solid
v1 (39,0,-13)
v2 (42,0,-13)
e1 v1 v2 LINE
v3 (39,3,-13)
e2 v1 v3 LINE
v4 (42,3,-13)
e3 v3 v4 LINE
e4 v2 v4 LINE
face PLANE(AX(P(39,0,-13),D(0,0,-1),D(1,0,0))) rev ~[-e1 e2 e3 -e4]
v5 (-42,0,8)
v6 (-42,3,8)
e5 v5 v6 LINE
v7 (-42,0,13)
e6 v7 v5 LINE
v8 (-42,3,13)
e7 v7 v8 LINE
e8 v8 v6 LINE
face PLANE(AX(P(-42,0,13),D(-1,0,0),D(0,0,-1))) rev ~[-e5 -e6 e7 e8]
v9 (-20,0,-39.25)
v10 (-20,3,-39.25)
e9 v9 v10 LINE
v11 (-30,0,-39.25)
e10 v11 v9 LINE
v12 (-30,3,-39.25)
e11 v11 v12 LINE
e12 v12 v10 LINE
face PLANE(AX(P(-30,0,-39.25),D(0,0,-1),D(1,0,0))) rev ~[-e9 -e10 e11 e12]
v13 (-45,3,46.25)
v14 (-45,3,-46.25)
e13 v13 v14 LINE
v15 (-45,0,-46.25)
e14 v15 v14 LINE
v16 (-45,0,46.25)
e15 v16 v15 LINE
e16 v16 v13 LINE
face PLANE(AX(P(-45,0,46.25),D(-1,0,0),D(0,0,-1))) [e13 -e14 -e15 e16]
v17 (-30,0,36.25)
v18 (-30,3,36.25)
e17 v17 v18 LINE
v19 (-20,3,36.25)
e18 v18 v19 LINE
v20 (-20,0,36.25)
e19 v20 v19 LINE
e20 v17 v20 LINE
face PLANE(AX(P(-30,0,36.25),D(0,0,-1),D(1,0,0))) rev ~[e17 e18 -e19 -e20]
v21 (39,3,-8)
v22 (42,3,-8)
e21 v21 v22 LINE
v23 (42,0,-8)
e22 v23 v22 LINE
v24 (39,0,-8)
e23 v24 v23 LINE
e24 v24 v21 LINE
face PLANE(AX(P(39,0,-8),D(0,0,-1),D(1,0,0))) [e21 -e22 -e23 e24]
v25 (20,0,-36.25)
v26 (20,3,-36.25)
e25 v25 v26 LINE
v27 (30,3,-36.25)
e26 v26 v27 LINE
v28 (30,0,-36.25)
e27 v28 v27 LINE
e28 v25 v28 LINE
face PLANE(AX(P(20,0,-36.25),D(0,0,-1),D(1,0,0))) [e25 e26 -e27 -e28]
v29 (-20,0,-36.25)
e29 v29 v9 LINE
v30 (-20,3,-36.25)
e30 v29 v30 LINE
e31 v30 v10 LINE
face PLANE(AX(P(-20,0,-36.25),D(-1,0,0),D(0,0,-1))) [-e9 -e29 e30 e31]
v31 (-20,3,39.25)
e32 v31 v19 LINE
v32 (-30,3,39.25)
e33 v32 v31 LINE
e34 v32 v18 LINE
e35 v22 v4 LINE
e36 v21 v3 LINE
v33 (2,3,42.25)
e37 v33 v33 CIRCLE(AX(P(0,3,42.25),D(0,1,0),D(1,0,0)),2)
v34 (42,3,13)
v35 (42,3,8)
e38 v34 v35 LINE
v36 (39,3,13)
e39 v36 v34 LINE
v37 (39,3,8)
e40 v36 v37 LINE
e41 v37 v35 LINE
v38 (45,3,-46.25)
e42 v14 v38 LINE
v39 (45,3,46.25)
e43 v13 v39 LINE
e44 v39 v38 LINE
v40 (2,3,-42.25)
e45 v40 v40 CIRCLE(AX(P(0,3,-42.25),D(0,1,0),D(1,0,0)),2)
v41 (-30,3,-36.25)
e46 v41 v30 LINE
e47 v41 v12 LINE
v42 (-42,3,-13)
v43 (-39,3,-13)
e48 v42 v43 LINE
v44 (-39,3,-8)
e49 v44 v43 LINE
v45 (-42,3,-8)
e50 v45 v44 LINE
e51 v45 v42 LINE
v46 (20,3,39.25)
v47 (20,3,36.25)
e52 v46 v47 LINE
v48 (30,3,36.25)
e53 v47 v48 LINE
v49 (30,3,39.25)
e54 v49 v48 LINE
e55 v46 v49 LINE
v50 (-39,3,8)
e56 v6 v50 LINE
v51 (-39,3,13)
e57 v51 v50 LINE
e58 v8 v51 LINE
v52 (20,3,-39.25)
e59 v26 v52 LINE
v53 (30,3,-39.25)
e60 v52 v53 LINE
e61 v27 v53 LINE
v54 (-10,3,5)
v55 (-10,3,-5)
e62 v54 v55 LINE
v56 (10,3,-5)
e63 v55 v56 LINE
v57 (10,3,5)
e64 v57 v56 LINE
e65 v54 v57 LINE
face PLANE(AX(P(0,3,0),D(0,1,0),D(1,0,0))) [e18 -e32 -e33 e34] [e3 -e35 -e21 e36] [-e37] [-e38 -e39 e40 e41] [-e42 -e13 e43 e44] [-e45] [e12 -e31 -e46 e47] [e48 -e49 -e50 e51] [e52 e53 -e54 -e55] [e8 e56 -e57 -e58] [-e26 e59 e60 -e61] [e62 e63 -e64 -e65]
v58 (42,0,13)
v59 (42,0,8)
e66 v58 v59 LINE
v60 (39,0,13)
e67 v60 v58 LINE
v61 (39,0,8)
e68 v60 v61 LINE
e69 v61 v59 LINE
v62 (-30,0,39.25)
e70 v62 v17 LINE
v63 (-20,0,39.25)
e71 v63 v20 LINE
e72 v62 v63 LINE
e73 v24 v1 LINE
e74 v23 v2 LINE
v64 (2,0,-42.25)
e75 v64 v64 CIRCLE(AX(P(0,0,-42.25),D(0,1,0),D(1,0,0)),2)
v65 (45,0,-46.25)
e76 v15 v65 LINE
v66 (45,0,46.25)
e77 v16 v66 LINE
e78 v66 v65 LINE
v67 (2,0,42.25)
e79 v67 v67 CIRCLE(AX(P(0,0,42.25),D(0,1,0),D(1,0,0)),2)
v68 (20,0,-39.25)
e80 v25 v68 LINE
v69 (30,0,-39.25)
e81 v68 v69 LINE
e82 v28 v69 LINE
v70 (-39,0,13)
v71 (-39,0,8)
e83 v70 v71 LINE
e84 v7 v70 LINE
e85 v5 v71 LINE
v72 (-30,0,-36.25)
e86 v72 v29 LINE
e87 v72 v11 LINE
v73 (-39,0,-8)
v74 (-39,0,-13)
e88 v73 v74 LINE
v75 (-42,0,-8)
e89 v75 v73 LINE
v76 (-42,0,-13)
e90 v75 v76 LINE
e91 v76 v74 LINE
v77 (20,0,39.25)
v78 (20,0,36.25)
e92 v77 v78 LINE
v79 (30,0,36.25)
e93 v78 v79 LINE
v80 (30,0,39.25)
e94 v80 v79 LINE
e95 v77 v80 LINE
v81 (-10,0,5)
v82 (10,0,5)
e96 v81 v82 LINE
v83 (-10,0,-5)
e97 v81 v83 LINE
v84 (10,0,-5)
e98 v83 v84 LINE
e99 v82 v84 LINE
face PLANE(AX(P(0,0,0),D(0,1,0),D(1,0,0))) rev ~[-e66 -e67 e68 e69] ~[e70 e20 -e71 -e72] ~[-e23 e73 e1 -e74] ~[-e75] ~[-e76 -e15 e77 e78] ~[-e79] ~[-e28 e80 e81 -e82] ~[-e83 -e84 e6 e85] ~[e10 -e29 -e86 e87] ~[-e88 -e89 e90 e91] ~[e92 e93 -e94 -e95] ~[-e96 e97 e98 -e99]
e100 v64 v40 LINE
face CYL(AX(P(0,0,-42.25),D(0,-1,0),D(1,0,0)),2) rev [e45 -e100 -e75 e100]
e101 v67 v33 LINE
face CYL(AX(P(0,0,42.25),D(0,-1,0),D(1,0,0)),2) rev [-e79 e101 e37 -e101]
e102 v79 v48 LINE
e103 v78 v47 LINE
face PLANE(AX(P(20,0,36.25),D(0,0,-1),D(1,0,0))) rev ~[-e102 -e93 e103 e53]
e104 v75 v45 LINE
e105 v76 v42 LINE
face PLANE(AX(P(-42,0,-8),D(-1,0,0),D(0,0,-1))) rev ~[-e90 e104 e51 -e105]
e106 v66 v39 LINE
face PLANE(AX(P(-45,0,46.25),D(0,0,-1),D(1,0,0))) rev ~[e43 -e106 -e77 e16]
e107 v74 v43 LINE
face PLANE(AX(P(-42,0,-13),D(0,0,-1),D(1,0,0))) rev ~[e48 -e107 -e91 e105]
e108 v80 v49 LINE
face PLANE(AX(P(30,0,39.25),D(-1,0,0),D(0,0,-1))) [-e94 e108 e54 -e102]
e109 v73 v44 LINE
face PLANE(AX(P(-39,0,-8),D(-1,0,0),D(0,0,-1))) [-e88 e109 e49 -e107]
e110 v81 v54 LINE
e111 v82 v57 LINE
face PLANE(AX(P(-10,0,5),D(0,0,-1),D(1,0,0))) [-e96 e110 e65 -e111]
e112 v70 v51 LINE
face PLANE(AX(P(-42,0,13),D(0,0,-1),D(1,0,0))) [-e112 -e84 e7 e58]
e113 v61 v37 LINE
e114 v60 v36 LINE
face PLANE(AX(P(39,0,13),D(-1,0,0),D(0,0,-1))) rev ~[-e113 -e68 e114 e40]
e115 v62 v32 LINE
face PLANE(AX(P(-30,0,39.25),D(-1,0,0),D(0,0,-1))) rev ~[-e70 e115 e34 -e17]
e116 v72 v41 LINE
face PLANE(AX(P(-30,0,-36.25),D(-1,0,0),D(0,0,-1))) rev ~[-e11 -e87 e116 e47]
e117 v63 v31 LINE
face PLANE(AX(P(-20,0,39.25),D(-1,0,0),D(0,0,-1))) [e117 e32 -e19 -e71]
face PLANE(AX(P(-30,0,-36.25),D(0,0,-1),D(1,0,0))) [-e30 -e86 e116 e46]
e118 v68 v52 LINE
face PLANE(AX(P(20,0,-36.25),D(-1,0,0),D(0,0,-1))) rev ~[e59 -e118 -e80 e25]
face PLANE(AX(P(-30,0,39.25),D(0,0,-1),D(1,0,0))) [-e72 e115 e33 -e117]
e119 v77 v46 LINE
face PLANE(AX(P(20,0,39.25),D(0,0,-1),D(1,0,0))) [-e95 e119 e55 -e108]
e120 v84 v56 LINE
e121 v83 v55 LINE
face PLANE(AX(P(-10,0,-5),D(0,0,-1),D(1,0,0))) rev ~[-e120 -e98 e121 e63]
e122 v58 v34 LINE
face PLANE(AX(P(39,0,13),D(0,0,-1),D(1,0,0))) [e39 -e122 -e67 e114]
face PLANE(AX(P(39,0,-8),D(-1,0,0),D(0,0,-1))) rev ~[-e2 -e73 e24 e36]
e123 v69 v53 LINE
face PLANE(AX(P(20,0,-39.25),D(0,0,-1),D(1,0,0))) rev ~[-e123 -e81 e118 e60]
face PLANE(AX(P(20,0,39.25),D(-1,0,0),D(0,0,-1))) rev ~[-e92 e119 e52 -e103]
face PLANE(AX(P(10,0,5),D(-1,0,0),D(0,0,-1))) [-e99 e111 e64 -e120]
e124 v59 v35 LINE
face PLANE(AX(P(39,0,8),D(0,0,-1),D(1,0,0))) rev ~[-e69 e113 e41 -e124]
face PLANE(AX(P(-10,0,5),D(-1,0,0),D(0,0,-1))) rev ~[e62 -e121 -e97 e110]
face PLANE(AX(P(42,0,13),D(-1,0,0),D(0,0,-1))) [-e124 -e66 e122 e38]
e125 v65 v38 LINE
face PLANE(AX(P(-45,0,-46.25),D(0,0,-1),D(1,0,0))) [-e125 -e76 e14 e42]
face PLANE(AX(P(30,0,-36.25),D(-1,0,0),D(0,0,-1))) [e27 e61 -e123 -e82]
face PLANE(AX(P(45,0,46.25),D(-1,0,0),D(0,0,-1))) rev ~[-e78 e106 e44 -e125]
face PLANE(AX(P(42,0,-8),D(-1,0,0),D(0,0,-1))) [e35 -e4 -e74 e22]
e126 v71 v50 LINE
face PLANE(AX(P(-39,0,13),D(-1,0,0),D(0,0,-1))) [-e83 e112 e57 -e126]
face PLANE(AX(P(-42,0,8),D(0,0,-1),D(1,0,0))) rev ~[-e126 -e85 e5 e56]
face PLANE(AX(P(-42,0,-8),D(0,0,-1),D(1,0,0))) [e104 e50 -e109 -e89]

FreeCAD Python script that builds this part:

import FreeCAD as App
import Part
import Sketcher

V = App.Vector


def add_polygon(sketch, points):
    """Adds a closed chain of lines whose ends are joined by coincident constraints."""
    first, n = sketch.GeometryCount, len(points)
    for a, b in zip(points, points[1:] + points[:1]):
        sketch.addGeometry(Part.LineSegment(App.Vector(*a, 0), App.Vector(*b, 0)), False)
    for i in range(n):
        sketch.addConstraint(Sketcher.Constraint("Coincident", first + i, 2, first + (i + 1) % n, 1))

doc = App.newDocument("Part")
body = doc.addObject("PartDesign::Body", "Body")

sketch1 = doc.addObject("Sketcher::SketchObject", "Sketch")
body.addObject(sketch1)
sketch1.AttachmentSupport = (doc.XZ_Plane, [""])
sketch1.MapMode = "FlatFace"
add_polygon(sketch1, [(-45, -46.25), (-45, 46.25), (45, 46.25), (45, -46.25)])
add_polygon(sketch1, [(-20, 39.25), (-30, 39.25), (-30, 36.25), (-20, 36.25)])
add_polygon(sketch1, [(-39, 13), (-42, 13), (-42, 8), (-39, 8)])
sketch1.addGeometry(Part.Circle(V(0, 42.25, 0), V(0, 0, 1), 2), False)
add_polygon(sketch1, [(30, 39.25), (20, 39.25), (20, 36.25), (30, 36.25)])
add_polygon(sketch1, [(42, 13), (39, 13), (39, 8), (42, 8)])
add_polygon(sketch1, [(-39, -8), (-42, -8), (-42, -13), (-39, -13)])
add_polygon(sketch1, [(-20, -36.25), (-30, -36.25), (-30, -39.25), (-20, -39.25)])
add_polygon(sketch1, [(10, 5), (-10, 5), (-10, -5), (10, -5)])
add_polygon(sketch1, [(42, -8), (39, -8), (39, -13), (42, -13)])
sketch1.addGeometry(Part.Circle(V(0, -42.25, 0), V(0, 0, 1), 2), False)
add_polygon(sketch1, [(30, -36.25), (20, -36.25), (20, -39.25), (30, -39.25)])
sketch1.addConstraint(Sketcher.Constraint("Vertical", 0))
sketch1.addConstraint(Sketcher.Constraint("Horizontal", 1))
sketch1.addConstraint(Sketcher.Constraint("Vertical", 2))
sketch1.addConstraint(Sketcher.Constraint("Horizontal", 3))
sketch1.addConstraint(Sketcher.Constraint("Horizontal", 4))
sketch1.addConstraint(Sketcher.Constraint("Vertical", 5))
sketch1.addConstraint(Sketcher.Constraint("Horizontal", 6))
sketch1.addConstraint(Sketcher.Constraint("Vertical", 7))
sketch1.addConstraint(Sketcher.Constraint("Horizontal", 8))
sketch1.addConstraint(Sketcher.Constraint("Vertical", 9))
sketch1.addConstraint(Sketcher.Constraint("Horizontal", 10))
sketch1.addConstraint(Sketcher.Constraint("Vertical", 11))
sketch1.addConstraint(Sketcher.Constraint("Horizontal", 13))
sketch1.addConstraint(Sketcher.Constraint("Vertical", 14))
sketch1.addConstraint(Sketcher.Constraint("Horizontal", 15))
sketch1.addConstraint(Sketcher.Constraint("Vertical", 16))
sketch1.addConstraint(Sketcher.Constraint("Horizontal", 17))
sketch1.addConstraint(Sketcher.Constraint("Vertical", 18))
sketch1.addConstraint(Sketcher.Constraint("Horizontal", 19))
sketch1.addConstraint(Sketcher.Constraint("Vertical", 20))
sketch1.addConstraint(Sketcher.Constraint("Horizontal", 21))
sketch1.addConstraint(Sketcher.Constraint("Vertical", 22))
sketch1.addConstraint(Sketcher.Constraint("Horizontal", 23))
sketch1.addConstraint(Sketcher.Constraint("Vertical", 24))
sketch1.addConstraint(Sketcher.Constraint("Horizontal", 25))
sketch1.addConstraint(Sketcher.Constraint("Vertical", 26))
sketch1.addConstraint(Sketcher.Constraint("Horizontal", 27))
sketch1.addConstraint(Sketcher.Constraint("Vertical", 28))
sketch1.addConstraint(Sketcher.Constraint("Horizontal", 29))
sketch1.addConstraint(Sketcher.Constraint("Vertical", 30))
sketch1.addConstraint(Sketcher.Constraint("Horizontal", 31))
sketch1.addConstraint(Sketcher.Constraint("Vertical", 32))
sketch1.addConstraint(Sketcher.Constraint("Horizontal", 33))
sketch1.addConstraint(Sketcher.Constraint("Vertical", 34))
sketch1.addConstraint(Sketcher.Constraint("Horizontal", 35))
sketch1.addConstraint(Sketcher.Constraint("Vertical", 36))
sketch1.addConstraint(Sketcher.Constraint("Horizontal", 38))
sketch1.addConstraint(Sketcher.Constraint("Vertical", 39))
sketch1.addConstraint(Sketcher.Constraint("Horizontal", 40))
sketch1.addConstraint(Sketcher.Constraint("Vertical", 41))
sketch1.addConstraint(Sketcher.Constraint("Equal", 12, 37))
sketch1.addConstraint(Sketcher.Constraint("Symmetric", 12, 3, 37, 3, -1, 1))
sketch1.addConstraint(Sketcher.Constraint("Symmetric", 0, 2, 2, 2, -1, 1))
sketch1.addConstraint(Sketcher.Constraint("Symmetric", 19, 2, 21, 2, -1, 1))
sketch1.addConstraint(Sketcher.Constraint("Symmetric", 17, 2, 23, 2, -1, 1))
sketch1.addConstraint(Sketcher.Constraint("Symmetric", 15, 2, 25, 2, -1, 1))
sketch1.addConstraint(Sketcher.Constraint("Symmetric", 13, 2, 27, 2, -1, 1))
sketch1.addConstraint(Sketcher.Constraint("Symmetric", 29, 2, 31, 2, -1, 1))
sketch1.addConstraint(Sketcher.Constraint("Symmetric", 10, 2, 33, 2, -1, 1))
sketch1.addConstraint(Sketcher.Constraint("Symmetric", 8, 2, 35, 2, -1, 1))
sketch1.addConstraint(Sketcher.Constraint("Symmetric", 6, 2, 38, 2, -1, 1))
sketch1.addConstraint(Sketcher.Constraint("Symmetric", 4, 2, 40, 2, -1, 1))
sketch1.addConstraint(Sketcher.Constraint("Symmetric", 7, 2, 13, 2, -2))
sketch1.addConstraint(Sketcher.Constraint("Symmetric", 5, 2, 15, 2, -2))
sketch1.addConstraint(Sketcher.Constraint("Symmetric", 11, 2, 17, 2, -2))
sketch1.addConstraint(Sketcher.Constraint("Symmetric", 9, 2, 19, 2, -2))
sketch1.addConstraint(Sketcher.Constraint("PointOnObject", 12, 3, -2))
sketch1.addConstraint(Sketcher.Constraint("Equal", 35, 5))
sketch1.addConstraint(Sketcher.Constraint("Equal", 40, 30))
sketch1.addConstraint(Sketcher.Constraint("Diameter", 12, 4.0))
sketch1.addConstraint(Sketcher.Constraint("DistanceX", 1, 1, 1, 2, 90.0))
sketch1.addConstraint(Sketcher.Constraint("DistanceX", 4, 2, 4, 1, 10.0))
sketch1.addConstraint(Sketcher.Constraint("DistanceX", 8, 2, 8, 1, 3.0))
sketch1.addConstraint(Sketcher.Constraint("DistanceX", 29, 2, 29, 1, 20.0))
sketch1.addConstraint(Sketcher.Constraint("DistanceY", 9, 2, 9, 1, 5.0))
sketch1.addConstraint(Sketcher.Constraint("DistanceY", 0, 1, 0, 2, 92.5))
sketch1.addConstraint(Sketcher.Constraint("DistanceX", 4, 2, -1, 1, 30.0))
sketch1.addConstraint(Sketcher.Constraint("DistanceX", 8, 2, -1, 1, 42.0))
sketch1.addConstraint(Sketcher.Constraint("DistanceY", -1, 1, 8, 2, 13.0))
sketch1.addConstraint(Sketcher.Constraint("DistanceY", 12, 3, 0, 2, 4.0))
sketch1.addConstraint(Sketcher.Constraint("DistanceY", 4, 2, 0, 2, 7.0))
pad1 = doc.addObject("PartDesign::Pad", "Pad")
body.addObject(pad1)
pad1.Profile = sketch1
pad1.Length = 3
pad1.Reversed = True

doc.recompute()
